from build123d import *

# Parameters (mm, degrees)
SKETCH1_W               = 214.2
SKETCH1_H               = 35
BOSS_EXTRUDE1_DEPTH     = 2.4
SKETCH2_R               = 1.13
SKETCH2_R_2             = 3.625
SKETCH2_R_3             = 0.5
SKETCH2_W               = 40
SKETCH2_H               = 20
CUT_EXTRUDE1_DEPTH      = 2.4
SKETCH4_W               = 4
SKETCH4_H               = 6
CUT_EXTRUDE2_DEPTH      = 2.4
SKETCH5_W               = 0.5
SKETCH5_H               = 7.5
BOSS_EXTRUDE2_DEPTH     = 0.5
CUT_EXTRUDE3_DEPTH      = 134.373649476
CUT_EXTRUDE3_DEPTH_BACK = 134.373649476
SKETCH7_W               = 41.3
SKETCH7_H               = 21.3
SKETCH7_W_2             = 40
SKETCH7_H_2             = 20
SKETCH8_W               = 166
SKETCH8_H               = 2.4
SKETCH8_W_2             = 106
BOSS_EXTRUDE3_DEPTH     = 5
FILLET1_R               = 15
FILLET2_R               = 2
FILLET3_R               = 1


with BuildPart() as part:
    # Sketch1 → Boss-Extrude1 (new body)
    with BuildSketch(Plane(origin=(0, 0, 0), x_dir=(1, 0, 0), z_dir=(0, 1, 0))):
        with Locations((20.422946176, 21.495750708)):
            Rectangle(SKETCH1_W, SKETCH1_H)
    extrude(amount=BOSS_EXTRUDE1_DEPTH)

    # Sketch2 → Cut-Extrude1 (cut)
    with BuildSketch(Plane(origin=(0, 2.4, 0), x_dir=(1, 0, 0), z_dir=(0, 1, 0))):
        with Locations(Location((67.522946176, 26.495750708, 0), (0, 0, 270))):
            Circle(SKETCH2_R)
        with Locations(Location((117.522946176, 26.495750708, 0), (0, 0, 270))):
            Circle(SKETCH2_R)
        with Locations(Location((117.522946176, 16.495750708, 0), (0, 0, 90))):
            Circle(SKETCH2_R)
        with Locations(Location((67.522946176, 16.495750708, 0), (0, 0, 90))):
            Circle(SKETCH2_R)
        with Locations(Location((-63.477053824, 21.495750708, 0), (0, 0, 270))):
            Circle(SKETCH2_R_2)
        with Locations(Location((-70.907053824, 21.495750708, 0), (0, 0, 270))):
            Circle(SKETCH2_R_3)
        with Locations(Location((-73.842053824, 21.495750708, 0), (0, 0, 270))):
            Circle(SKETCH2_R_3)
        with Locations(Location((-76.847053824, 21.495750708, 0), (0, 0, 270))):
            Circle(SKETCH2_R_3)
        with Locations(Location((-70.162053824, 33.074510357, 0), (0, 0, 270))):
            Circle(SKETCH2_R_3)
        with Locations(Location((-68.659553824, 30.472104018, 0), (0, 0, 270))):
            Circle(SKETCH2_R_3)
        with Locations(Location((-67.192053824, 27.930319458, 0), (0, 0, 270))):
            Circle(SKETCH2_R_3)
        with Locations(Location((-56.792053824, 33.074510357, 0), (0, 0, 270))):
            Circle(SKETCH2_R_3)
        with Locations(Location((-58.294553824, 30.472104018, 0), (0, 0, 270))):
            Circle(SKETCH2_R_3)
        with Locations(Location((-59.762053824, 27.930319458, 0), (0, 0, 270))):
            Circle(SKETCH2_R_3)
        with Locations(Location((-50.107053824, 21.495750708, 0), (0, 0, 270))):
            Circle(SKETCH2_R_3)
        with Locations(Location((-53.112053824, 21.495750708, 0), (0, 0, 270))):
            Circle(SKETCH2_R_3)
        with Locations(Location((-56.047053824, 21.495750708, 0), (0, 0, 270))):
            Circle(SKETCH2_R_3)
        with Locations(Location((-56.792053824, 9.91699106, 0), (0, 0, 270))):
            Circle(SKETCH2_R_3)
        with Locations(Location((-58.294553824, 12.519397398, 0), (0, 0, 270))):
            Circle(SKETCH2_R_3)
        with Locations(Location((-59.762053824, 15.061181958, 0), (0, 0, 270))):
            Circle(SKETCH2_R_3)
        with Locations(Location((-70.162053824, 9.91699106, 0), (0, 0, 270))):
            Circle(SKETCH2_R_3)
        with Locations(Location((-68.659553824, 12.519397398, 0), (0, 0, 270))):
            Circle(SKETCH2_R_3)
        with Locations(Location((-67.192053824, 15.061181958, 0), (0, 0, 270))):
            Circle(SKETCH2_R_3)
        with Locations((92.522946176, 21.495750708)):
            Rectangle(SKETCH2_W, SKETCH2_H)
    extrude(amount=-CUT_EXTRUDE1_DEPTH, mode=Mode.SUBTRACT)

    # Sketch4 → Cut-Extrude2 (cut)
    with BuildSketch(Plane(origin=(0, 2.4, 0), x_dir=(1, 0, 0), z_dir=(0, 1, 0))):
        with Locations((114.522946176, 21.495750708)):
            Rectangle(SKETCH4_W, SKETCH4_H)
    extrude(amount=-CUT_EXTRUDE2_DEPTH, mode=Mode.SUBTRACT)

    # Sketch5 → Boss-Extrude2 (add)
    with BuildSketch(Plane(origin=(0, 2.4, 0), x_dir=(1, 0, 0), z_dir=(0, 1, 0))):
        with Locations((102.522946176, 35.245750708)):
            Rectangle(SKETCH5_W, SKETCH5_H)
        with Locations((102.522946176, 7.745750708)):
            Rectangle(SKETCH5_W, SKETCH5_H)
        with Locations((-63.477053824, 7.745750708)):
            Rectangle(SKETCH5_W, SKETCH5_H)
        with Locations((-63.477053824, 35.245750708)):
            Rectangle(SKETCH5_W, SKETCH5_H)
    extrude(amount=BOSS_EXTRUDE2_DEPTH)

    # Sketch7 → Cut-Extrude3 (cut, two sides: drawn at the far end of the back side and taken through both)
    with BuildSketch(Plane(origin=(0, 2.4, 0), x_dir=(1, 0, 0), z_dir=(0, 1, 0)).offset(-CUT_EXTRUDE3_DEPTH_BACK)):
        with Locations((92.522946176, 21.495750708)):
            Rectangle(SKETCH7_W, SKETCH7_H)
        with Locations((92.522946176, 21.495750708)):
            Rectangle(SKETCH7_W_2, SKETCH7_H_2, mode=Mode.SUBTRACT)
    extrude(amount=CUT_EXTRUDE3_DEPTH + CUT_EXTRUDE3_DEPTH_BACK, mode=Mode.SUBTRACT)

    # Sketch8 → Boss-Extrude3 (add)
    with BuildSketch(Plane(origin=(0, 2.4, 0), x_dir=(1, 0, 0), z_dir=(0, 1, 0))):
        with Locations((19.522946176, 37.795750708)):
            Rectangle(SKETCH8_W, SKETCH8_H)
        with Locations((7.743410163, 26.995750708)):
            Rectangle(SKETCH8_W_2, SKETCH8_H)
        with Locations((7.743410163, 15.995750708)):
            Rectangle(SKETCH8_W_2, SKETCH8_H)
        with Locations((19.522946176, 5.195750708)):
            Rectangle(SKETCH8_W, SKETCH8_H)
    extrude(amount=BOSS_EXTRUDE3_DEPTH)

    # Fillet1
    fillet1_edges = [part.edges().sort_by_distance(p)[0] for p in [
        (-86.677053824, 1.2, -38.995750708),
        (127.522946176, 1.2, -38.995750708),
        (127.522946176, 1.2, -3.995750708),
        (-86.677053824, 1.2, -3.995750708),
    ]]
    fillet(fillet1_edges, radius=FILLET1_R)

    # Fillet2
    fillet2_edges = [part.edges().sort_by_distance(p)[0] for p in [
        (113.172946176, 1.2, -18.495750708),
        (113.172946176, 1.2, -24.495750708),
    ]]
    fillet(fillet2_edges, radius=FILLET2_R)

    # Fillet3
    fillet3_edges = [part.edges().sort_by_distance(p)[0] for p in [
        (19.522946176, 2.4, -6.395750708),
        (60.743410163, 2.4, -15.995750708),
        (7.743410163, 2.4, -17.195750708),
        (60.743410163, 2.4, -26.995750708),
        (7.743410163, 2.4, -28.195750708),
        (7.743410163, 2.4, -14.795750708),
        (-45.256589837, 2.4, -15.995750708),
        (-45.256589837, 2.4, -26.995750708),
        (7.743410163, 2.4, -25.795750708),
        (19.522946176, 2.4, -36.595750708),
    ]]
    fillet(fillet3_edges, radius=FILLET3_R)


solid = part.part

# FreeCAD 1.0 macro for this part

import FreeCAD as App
import Part
import Sketcher

V = App.Vector


def edges_at(feature, points):
    """Names of the edges that pass closest to the given points."""
    edges = feature.Shape.Edges
    near = lambda p: min(range(len(edges)), key=lambda i: edges[i].distToShape(Part.Vertex(*p))[0])
    return sorted({f"Edge{near(p) + 1}" for p in points})


def add_polygon(sketch, points):
    """Adds a closed chain of lines whose ends are joined by coincident constraints."""
    first, n = sketch.GeometryCount, len(points)
    for a, b in zip(points, points[1:] + points[:1]):
        sketch.addGeometry(Part.LineSegment(App.Vector(*a, 0), App.Vector(*b, 0)), False)
    for i in range(n):
        sketch.addConstraint(Sketcher.Constraint("Coincident", first + i, 2, first + (i + 1) % n, 1))

doc = App.newDocument("Part")
body = doc.addObject("PartDesign::Body", "Body")

# Sketch on XZ plane
sketch1 = doc.addObject("Sketcher::SketchObject", "Sketch")
body.addObject(sketch1)
sketch1.AttachmentSupport = (doc.XZ_Plane, [""])
sketch1.MapMode = "FlatFace"
add_polygon(sketch1, [(-87, -39), (-87, -4), (128, -4), (128, -39)])  # lines 0-3
sketch1.addConstraint(Sketcher.Constraint("Vertical", 0))
sketch1.addConstraint(Sketcher.Constraint("Horizontal", 1))
sketch1.addConstraint(Sketcher.Constraint("Vertical", 2))
sketch1.addConstraint(Sketcher.Constraint("Horizontal", 3))
sketch1.addConstraint(Sketcher.Constraint("DistanceY", 0, 1, 0, 2, 35.0))
sketch1.addConstraint(Sketcher.Constraint("DistanceX", 1, 1, 1, 2, 214.2))
sketch1.addConstraint(Sketcher.Constraint("DistanceY", 0, 2, -1, 1, 3.995751))
sketch1.addConstraint(Sketcher.Constraint("DistanceX", 0, 2, -1, 1, 86.677054))
pad1 = doc.addObject("PartDesign::Pad", "Pad")
body.addObject(pad1)
pad1.Profile = sketch1
pad1.Length = 2.4
pad1.Reversed = True

# Sketch on XZ plane
sketch2 = doc.addObject("Sketcher::SketchObject", "Sketch001")
body.addObject(sketch2)
sketch2.AttachmentSupport = (doc.XZ_Plane, [""])
sketch2.MapMode = "FlatFace"
sketch2.AttachmentOffset = App.Placement(V(0, 0, -2.4), App.Rotation())
sketch2.addGeometry(Part.Circle(V(67.5, -26.5, 0), V(0, 0, 1), 1.1), False)  # 0
sketch2.addGeometry(Part.Circle(V(117.5, -26.5, 0), V(0, 0, 1), 1.1), False)  # 1
sketch2.addGeometry(Part.Circle(V(117.5, -16.5, 0), V(0, 0, 1), 1.1), False)  # 2
sketch2.addGeometry(Part.Circle(V(67.5, -16.5, 0), V(0, 0, 1), 1.1), False)  # 3
sketch2.addGeometry(Part.Circle(V(-63.5, -21.5, 0), V(0, 0, 1), 3.6), False)  # 4
sketch2.addGeometry(Part.Circle(V(-70.9, -21.5, 0), V(0, 0, 1), 0.5), False)  # 5
sketch2.addGeometry(Part.Circle(V(-73.8, -21.5, 0), V(0, 0, 1), 0.5), False)  # 6
sketch2.addGeometry(Part.Circle(V(-76.8, -21.5, 0), V(0, 0, 1), 0.5), False)  # 7
sketch2.addGeometry(Part.Circle(V(-70.2, -33.1, 0), V(0, 0, 1), 0.5), False)  # 8
sketch2.addGeometry(Part.Circle(V(-68.7, -30.5, 0), V(0, 0, 1), 0.5), False)  # 9
sketch2.addGeometry(Part.Circle(V(-67.2, -27.9, 0), V(0, 0, 1), 0.5), False)  # 10
sketch2.addGeometry(Part.Circle(V(-56.8, -33.1, 0), V(0, 0, 1), 0.5), False)  # 11
sketch2.addGeometry(Part.Circle(V(-58.3, -30.5, 0), V(0, 0, 1), 0.5), False)  # 12
sketch2.addGeometry(Part.Circle(V(-59.8, -27.9, 0), V(0, 0, 1), 0.5), False)  # 13
sketch2.addGeometry(Part.Circle(V(-50.1, -21.5, 0), V(0, 0, 1), 0.5), False)  # 14
sketch2.addGeometry(Part.Circle(V(-53.1, -21.5, 0), V(0, 0, 1), 0.5), False)  # 15
sketch2.addGeometry(Part.Circle(V(-56, -21.5, 0), V(0, 0, 1), 0.5), False)  # 16
sketch2.addGeometry(Part.Circle(V(-56.8, -9.9, 0), V(0, 0, 1), 0.5), False)  # 17
sketch2.addGeometry(Part.Circle(V(-58.3, -12.5, 0), V(0, 0, 1), 0.5), False)  # 18
sketch2.addGeometry(Part.Circle(V(-59.8, -15.1, 0), V(0, 0, 1), 0.5), False)  # 19
sketch2.addGeometry(Part.Circle(V(-70.2, -9.9, 0), V(0, 0, 1), 0.5), False)  # 20
sketch2.addGeometry(Part.Circle(V(-68.7, -12.5, 0), V(0, 0, 1), 0.5), False)  # 21
sketch2.addGeometry(Part.Circle(V(-67.2, -15.1, 0), V(0, 0, 1), 0.5), False)  # 22
add_polygon(sketch2, [(72.5, -31.5), (72.5, -11.5), (112.5, -11.5), (112.5, -31.5)])  # lines 23-26
sketch2.addConstraint(Sketcher.Constraint("Vertical", 23))
sketch2.addConstraint(Sketcher.Constraint("Horizontal", 24))
sketch2.addConstraint(Sketcher.Constraint("Vertical", 25))
sketch2.addConstraint(Sketcher.Constraint("Horizontal", 26))
sketch2.addConstraint(Sketcher.Constraint("Equal", 0, 1))
sketch2.addConstraint(Sketcher.Constraint("Equal", 1, 2))
sketch2.addConstraint(Sketcher.Constraint("Equal", 2, 3))
sketch2.addConstraint(Sketcher.Constraint("Equal", 5, 6))
sketch2.addConstraint(Sketcher.Constraint("Equal", 6, 7))
sketch2.addConstraint(Sketcher.Constraint("Equal", 7, 8))
sketch2.addConstraint(Sketcher.Constraint("Equal", 8, 9))
sketch2.addConstraint(Sketcher.Constraint("Equal", 9, 10))
sketch2.addConstraint(Sketcher.Constraint("Equal", 10, 11))
sketch2.addConstraint(Sketcher.Constraint("Equal", 11, 12))
sketch2.addConstraint(Sketcher.Constraint("Equal", 12, 13))
sketch2.addConstraint(Sketcher.Constraint("Equal", 13, 14))
sketch2.addConstraint(Sketcher.Constraint("Equal", 14, 15))
sketch2.addConstraint(Sketcher.Constraint("Equal", 15, 16))
sketch2.addConstraint(Sketcher.Constraint("Equal", 16, 17))
sketch2.addConstraint(Sketcher.Constraint("Equal", 17, 18))
sketch2.addConstraint(Sketcher.Constraint("Equal", 18, 19))
sketch2.addConstraint(Sketcher.Constraint("Equal", 19, 20))
sketch2.addConstraint(Sketcher.Constraint("Equal", 20, 21))
sketch2.addConstraint(Sketcher.Constraint("Equal", 21, 22))
sketch2.addConstraint(Sketcher.Constraint("Horizontal", 0, 3, 1, 3))
sketch2.addConstraint(Sketcher.Constraint("Horizontal", 2, 3, 3, 3))
sketch2.addConstraint(Sketcher.Constraint("Horizontal", 4, 3, 5, 3))
sketch2.addConstraint(Sketcher.Constraint("Horizontal", 5, 3, 6, 3))
sketch2.addConstraint(Sketcher.Constraint("Horizontal", 6, 3, 7, 3))
sketch2.addConstraint(Sketcher.Constraint("Horizontal", 8, 3, 11, 3))
sketch2.addConstraint(Sketcher.Constraint("Horizontal", 9, 3, 12, 3))
sketch2.addConstraint(Sketcher.Constraint("Horizontal", 10, 3, 13, 3))
sketch2.addConstraint(Sketcher.Constraint("Horizontal", 7, 3, 14, 3))
sketch2.addConstraint(Sketcher.Constraint("Horizontal", 14, 3, 15, 3))
sketch2.addConstraint(Sketcher.Constraint("Horizontal", 15, 3, 16, 3))
sketch2.addConstraint(Sketcher.Constraint("Horizontal", 17, 3, 20, 3))
sketch2.addConstraint(Sketcher.Constraint("Horizontal", 18, 3, 21, 3))
sketch2.addConstraint(Sketcher.Constraint("Horizontal", 19, 3, 22, 3))
sketch2.addConstraint(Sketcher.Constraint("Vertical", 1, 3, 2, 3))
sketch2.addConstraint(Sketcher.Constraint("Vertical", 0, 3, 3, 3))
sketch2.addConstraint(Sketcher.Constraint("Vertical", 11, 3, 17, 3))
sketch2.addConstraint(Sketcher.Constraint("Vertical", 12, 3, 18, 3))
sketch2.addConstraint(Sketcher.Constraint("Vertical", 13, 3, 19, 3))
sketch2.addConstraint(Sketcher.Constraint("Vertical", 8, 3, 20, 3))
sketch2.addConstraint(Sketcher.Constraint("Vertical", 9, 3, 21, 3))
sketch2.addConstraint(Sketcher.Constraint("Vertical", 10, 3, 22, 3))
sketch2.addConstraint(Sketcher.Constraint("Diameter", 5, 1.0))
sketch2.addConstraint(Sketcher.Constraint("Diameter", 0, 2.26))
sketch2.addConstraint(Sketcher.Constraint("Diameter", 4, 7.25))
sketch2.addConstraint(Sketcher.Constraint("DistanceX", 24, 1, 24, 2, 40.0))
sketch2.addConstraint(Sketcher.Constraint("DistanceY", 23, 1, 23, 2, 20.0))
sketch2.addConstraint(Sketcher.Constraint("DistanceX", 0, 3, 1, 3, 50.0))
sketch2.addConstraint(Sketcher.Constraint("DistanceY", 1, 3, 2, 3, 10.0))
sketch2.addConstraint(Sketcher.Constraint("DistanceX", 4, 3, 0, 3, 131.0))
sketch2.addConstraint(Sketcher.Constraint("DistanceY", 0, 3, 4, 3, 5.0))
sketch2.addConstraint(Sketcher.Constraint("DistanceX", 3, 3, 23, 2, 5.0))
sketch2.addConstraint(Sketcher.Constraint("DistanceY", 3, 3, 23, 2, 5.0))
sketch2.addConstraint(Sketcher.Constraint("DistanceX", 10, 3, 11, 3, 10.4))
sketch2.addConstraint(Sketcher.Constraint("DistanceX", 20, 3, 19, 3, 10.4))
sketch2.addConstraint(Sketcher.Constraint("DistanceX", 5, 3, 4, 3, 7.43))
sketch2.addConstraint(Sketcher.Constraint("DistanceX", 7, 3, 5, 3, 5.94))
sketch2.addConstraint(Sketcher.Constraint("DistanceX", 6, 3, 8, 3, 3.68))
sketch2.addConstraint(Sketcher.Constraint("DistanceX", 8, 3, 10, 3, 2.97))
sketch2.addConstraint(Sketcher.Constraint("DistanceX", 4, 3, 14, 3, 13.37))
sketch2.addConstraint(Sketcher.Constraint("DistanceX", 13, 3, 15, 3, 6.65))
sketch2.addConstraint(Sketcher.Constraint("DistanceX", 16, 3, 14, 3, 5.94))
sketch2.addConstraint(Sketcher.Constraint("DistanceX", 6, 3, 5, 3, 2.935))
sketch2.addConstraint(Sketcher.Constraint("DistanceX", 9, 3, 12, 3, 10.365))
sketch2.addConstraint(Sketcher.Constraint("DistanceX", 8, 3, 9, 3, 1.5025))
sketch2.addConstraint(Sketcher.Constraint("DistanceY", 0, 3, -1, 1, 26.495751))
sketch2.addConstraint(Sketcher.Constraint("DistanceY", 8, 3, -1, 1, 33.07451))
sketch2.addConstraint(Sketcher.Constraint("DistanceY", 10, 3, -1, 1, 27.930319))
sketch2.addConstraint(Sketcher.Constraint("DistanceY", 17, 3, -1, 1, 9.916991))
sketch2.addConstraint(Sketcher.Constraint("DistanceY", 19, 3, -1, 1, 15.061182))
sketch2.addConstraint(Sketcher.Constraint("DistanceX", -1, 1, 0, 3, 67.522946))
sketch2.addConstraint(Sketcher.Constraint("DistanceY", 9, 3, -1, 1, 30.472104))
sketch2.addConstraint(Sketcher.Constraint("DistanceY", 18, 3, -1, 1, 12.519397))
pocket1 = doc.addObject("PartDesign::Pocket", "Pocket")
body.addObject(pocket1)
pocket1.Profile = sketch2
pocket1.Length = 2.4
pocket1.Reversed = True

# Sketch on XZ plane
sketch3 = doc.addObject("Sketcher::SketchObject", "Sketch002")
body.addObject(sketch3)
sketch3.AttachmentSupport = (doc.XZ_Plane, [""])
sketch3.MapMode = "FlatFace"
sketch3.AttachmentOffset = App.Placement(V(0, 0, -2.4), App.Rotation())
add_polygon(sketch3, [(112.5, -24.5), (112.5, -18.5), (116.5, -18.5), (116.5, -24.5)])  # lines 0-3
sketch3.addConstraint(Sketcher.Constraint("Vertical", 0))
sketch3.addConstraint(Sketcher.Constraint("Horizontal", 1))
sketch3.addConstraint(Sketcher.Constraint("Vertical", 2))
sketch3.addConstraint(Sketcher.Constraint("Horizontal", 3))
sketch3.addConstraint(Sketcher.Constraint("DistanceX", 1, 1, 1, 2, 4.0))
sketch3.addConstraint(Sketcher.Constraint("DistanceY", 0, 1, 0, 2, 6.0))
sketch3.addConstraint(Sketcher.Constraint("DistanceY", 0, 2, -1, 1, 18.495751))
sketch3.addConstraint(Sketcher.Constraint("DistanceX", -1, 1, 0, 2, 112.522946))
pocket2 = doc.addObject("PartDesign::Pocket", "Pocket001")
body.addObject(pocket2)
pocket2.Profile = sketch3
pocket2.Length = 2.4
pocket2.Reversed = True

# Sketch on XZ plane
sketch4 = doc.addObject("Sketcher::SketchObject", "Sketch003")
body.addObject(sketch4)
sketch4.AttachmentSupport = (doc.XZ_Plane, [""])
sketch4.MapMode = "FlatFace"
sketch4.AttachmentOffset = App.Placement(V(0, 0, -2.4), App.Rotation())
add_polygon(sketch4, [(102.3, -39), (102.3, -31.5), (102.8, -31.5), (102.8, -39)])  # lines 0-3
add_polygon(sketch4, [(102.3, -11.5), (102.3, -4), (102.8, -4), (102.8, -11.5)])  # lines 4-7
add_polygon(sketch4, [(-63.7, -11.5), (-63.7, -4), (-63.2, -4), (-63.2, -11.5)])  # lines 8-11
add_polygon(sketch4, [(-63.7, -39), (-63.7, -31.5), (-63.2, -31.5), (-63.2, -39)])  # lines 12-15
sketch4.addConstraint(Sketcher.Constraint("Vertical", 0))
sketch4.addConstraint(Sketcher.Constraint("Horizontal", 1))
sketch4.addConstraint(Sketcher.Constraint("Vertical", 2))
sketch4.addConstraint(Sketcher.Constraint("Horizontal", 3))
sketch4.addConstraint(Sketcher.Constraint("Vertical", 4))
sketch4.addConstraint(Sketcher.Constraint("Horizontal", 5))
sketch4.addConstraint(Sketcher.Constraint("Vertical", 6))
sketch4.addConstraint(Sketcher.Constraint("Horizontal", 7))
sketch4.addConstraint(Sketcher.Constraint("Vertical", 8))
sketch4.addConstraint(Sketcher.Constraint("Horizontal", 9))
sketch4.addConstraint(Sketcher.Constraint("Vertical", 10))
sketch4.addConstraint(Sketcher.Constraint("Horizontal", 11))
sketch4.addConstraint(Sketcher.Constraint("Vertical", 12))
sketch4.addConstraint(Sketcher.Constraint("Horizontal", 13))
sketch4.addConstraint(Sketcher.Constraint("Vertical", 14))
sketch4.addConstraint(Sketcher.Constraint("Horizontal", 15))
sketch4.addConstraint(Sketcher.Constraint("Horizontal", 5, 2, 8, 2))
sketch4.addConstraint(Sketcher.Constraint("Horizontal", 7, 2, 10, 2))
sketch4.addConstraint(Sketcher.Constraint("Horizontal", 1, 2, 12, 2))
sketch4.addConstraint(Sketcher.Constraint("Horizontal", 3, 2, 14, 2))
sketch4.addConstraint(Sketcher.Constraint("Vertical", 3, 2, 4, 2))
sketch4.addConstraint(Sketcher.Constraint("Vertical", 2, 2, 5, 2))
sketch4.addConstraint(Sketcher.Constraint("Vertical", 11, 2, 12, 2))
sketch4.addConstraint(Sketcher.Constraint("Vertical", 10, 2, 13, 2))
sketch4.addConstraint(Sketcher.Constraint("Equal", 7, 9))
sketch4.addConstraint(Sketcher.Constraint("Equal", 2, 4))
sketch4.addConstraint(Sketcher.Constraint("DistanceX", 1, 1, 1, 2, 0.5))
sketch4.addConstraint(Sketcher.Constraint("DistanceY", 0, 1, 0, 2, 7.5))
sketch4.addConstraint(Sketcher.Constraint("DistanceY", 3, 2, 4, 2, 35.0))
sketch4.addConstraint(Sketcher.Constraint("DistanceX", 8, 2, 4, 2, 166.0))
sketch4.addConstraint(Sketcher.Constraint("DistanceY", 0, 2, -1, 1, 31.495751))
sketch4.addConstraint(Sketcher.Constraint("DistanceX", -1, 1, 0, 2, 102.272946))
pad2 = doc.addObject("PartDesign::Pad", "Pad001")
body.addObject(pad2)
pad2.Profile = sketch4
pad2.Length = 0.5
pad2.Reversed = True

# Sketch on XZ plane
sketch5 = doc.addObject("Sketcher::SketchObject", "Sketch004")
body.addObject(sketch5)
sketch5.AttachmentSupport = (doc.XZ_Plane, [""])
sketch5.MapMode = "FlatFace"
sketch5.AttachmentOffset = App.Placement(V(0, 0, -2.4), App.Rotation())
add_polygon(sketch5, [(72, -32), (72, -11), (113, -11), (113, -32)])  # lines 0-3
add_polygon(sketch5, [(113, -11), (73, -11), (73, -31), (113, -31)])  # lines 4-7
sketch5.addConstraint(Sketcher.Constraint("Vertical", 0))
sketch5.addConstraint(Sketcher.Constraint("Horizontal", 1))
sketch5.addConstraint(Sketcher.Constraint("Vertical", 2))
sketch5.addConstraint(Sketcher.Constraint("Horizontal", 3))
sketch5.addConstraint(Sketcher.Constraint("Horizontal", 4))
sketch5.addConstraint(Sketcher.Constraint("Vertical", 5))
sketch5.addConstraint(Sketcher.Constraint("Horizontal", 6))
sketch5.addConstraint(Sketcher.Constraint("Vertical", 7))
sketch5.addConstraint(Sketcher.Constraint("DistanceX", 4, 2, 4, 1, 40.0))
sketch5.addConstraint(Sketcher.Constraint("DistanceY", 5, 2, 5, 1, 20.0))
sketch5.addConstraint(Sketcher.Constraint("DistanceX", 1, 1, 1, 2, 41.3))
sketch5.addConstraint(Sketcher.Constraint("DistanceY", 0, 1, 0, 2, 21.3))
sketch5.addConstraint(Sketcher.Constraint("DistanceX", 0, 2, 4, 2, 0.65))
sketch5.addConstraint(Sketcher.Constraint("DistanceY", 4, 2, 0, 2, 0.65))
sketch5.addConstraint(Sketcher.Constraint("DistanceY", 0, 2, -1, 1, 10.845751))
sketch5.addConstraint(Sketcher.Constraint("DistanceX", -1, 1, 0, 2, 71.872946))
pocket3 = doc.addObject("PartDesign::Pocket", "Pocket002")
body.addObject(pocket3)
pocket3.Profile = sketch5
pocket3.Type = "ThroughAll"
pocket3.Midplane = True

# Sketch on XZ plane
sketch6 = doc.addObject("Sketcher::SketchObject", "Sketch005")
body.addObject(sketch6)
sketch6.AttachmentSupport = (doc.XZ_Plane, [""])
sketch6.MapMode = "FlatFace"
sketch6.AttachmentOffset = App.Placement(V(0, 0, -2.4), App.Rotation())
add_polygon(sketch6, [(-63.5, -39), (-63.5, -36.6), (102.5, -36.6), (102.5, -39)])  # lines 0-3
add_polygon(sketch6, [(-45.3, -28.2), (-45.3, -25.8), (60.7, -25.8), (60.7, -28.2)])  # lines 4-7
add_polygon(sketch6, [(-45.3, -17.2), (-45.3, -14.8), (60.7, -14.8), (60.7, -17.2)])  # lines 8-11
add_polygon(sketch6, [(-63.5, -6.4), (-63.5, -4), (102.5, -4), (102.5, -6.4)])  # lines 12-15
sketch6.addConstraint(Sketcher.Constraint("Vertical", 0))
sketch6.addConstraint(Sketcher.Constraint("Horizontal", 1))
sketch6.addConstraint(Sketcher.Constraint("Vertical", 2))
sketch6.addConstraint(Sketcher.Constraint("Horizontal", 3))
sketch6.addConstraint(Sketcher.Constraint("Vertical", 4))
sketch6.addConstraint(Sketcher.Constraint("Horizontal", 5))
sketch6.addConstraint(Sketcher.Constraint("Vertical", 6))
sketch6.addConstraint(Sketcher.Constraint("Horizontal", 7))
sketch6.addConstraint(Sketcher.Constraint("Vertical", 8))
sketch6.addConstraint(Sketcher.Constraint("Horizontal", 9))
sketch6.addConstraint(Sketcher.Constraint("Vertical", 10))
sketch6.addConstraint(Sketcher.Constraint("Horizontal", 11))
sketch6.addConstraint(Sketcher.Constraint("Vertical", 12))
sketch6.addConstraint(Sketcher.Constraint("Horizontal", 13))
sketch6.addConstraint(Sketcher.Constraint("Vertical", 14))
sketch6.addConstraint(Sketcher.Constraint("Horizontal", 15))
sketch6.addConstraint(Sketcher.Constraint("Vertical", 7, 2, 8, 2))
sketch6.addConstraint(Sketcher.Constraint("Vertical", 6, 2, 9, 2))
sketch6.addConstraint(Sketcher.Constraint("Vertical", 3, 2, 12, 2))
sketch6.addConstraint(Sketcher.Constraint("Vertical", 2, 2, 13, 2))
sketch6.addConstraint(Sketcher.Constraint("Equal", 2, 4))
sketch6.addConstraint(Sketcher.Constraint("Equal", 6, 8))
sketch6.addConstraint(Sketcher.Constraint("Equal", 10, 12))
sketch6.addConstraint(Sketcher.Constraint("DistanceX", 1, 1, 1, 2, 166.0))
sketch6.addConstraint(Sketcher.Constraint("DistanceX", 5, 1, 5, 2, 106.0))
sketch6.addConstraint(Sketcher.Constraint("DistanceY", 0, 1, 0, 2, 2.4))
sketch6.addConstraint(Sketcher.Constraint("DistanceY", 4, 2, 8, 2, 11.0))
sketch6.addConstraint(Sketcher.Constraint("DistanceY", 2, 2, 13, 2, 35.0))
sketch6.addConstraint(Sketcher.Constraint("DistanceY", 0, 2, 4, 2, 10.8))
sketch6.addConstraint(Sketcher.Constraint("DistanceY", 0, 2, -1, 1, 36.595751))
sketch6.addConstraint(Sketcher.Constraint("DistanceX", 4, 2, -1, 1, 45.25659))
sketch6.addConstraint(Sketcher.Constraint("DistanceX", 0, 2, -1, 1, 63.477054))
pad3 = doc.addObject("PartDesign::Pad", "Pad002")
body.addObject(pad3)
pad3.Profile = sketch6
pad3.Length = 5
pad3.Reversed = True
doc.recompute()

fillet = doc.addObject("PartDesign::Fillet", "Fillet")
body.addObject(fillet)
fillet.Base = (pad3, edges_at(pad3, [
    (-86.677, 1.2, -38.996),
    (127.523, 1.2, -38.996),
    (127.523, 1.2, -3.996),
    (-86.677, 1.2, -3.996),
]))
fillet.Radius = 15
doc.recompute()

fillet2 = doc.addObject("PartDesign::Fillet", "Fillet001")
body.addObject(fillet2)
fillet2.Base = (fillet, edges_at(fillet, [(113.173, 1.2, -18.496), (113.173, 1.2, -24.496)]))
fillet2.Radius = 2
doc.recompute()

fillet3 = doc.addObject("PartDesign::Fillet", "Fillet002")
body.addObject(fillet3)
fillet3.Base = (fillet2, edges_at(fillet2, [
    (19.523, 2.4, -6.396),
    (60.743, 2.4, -15.996),
    (7.743, 2.4, -17.196),
    (60.743, 2.4, -26.996),
    (7.743, 2.4, -28.196),
    (7.743, 2.4, -14.796),
    (-45.257, 2.4, -15.996),
    (-45.257, 2.4, -26.996),
    (7.743, 2.4, -25.796),
    (19.523, 2.4, -36.596),
]))
fillet3.Radius = 1

doc.recompute()
